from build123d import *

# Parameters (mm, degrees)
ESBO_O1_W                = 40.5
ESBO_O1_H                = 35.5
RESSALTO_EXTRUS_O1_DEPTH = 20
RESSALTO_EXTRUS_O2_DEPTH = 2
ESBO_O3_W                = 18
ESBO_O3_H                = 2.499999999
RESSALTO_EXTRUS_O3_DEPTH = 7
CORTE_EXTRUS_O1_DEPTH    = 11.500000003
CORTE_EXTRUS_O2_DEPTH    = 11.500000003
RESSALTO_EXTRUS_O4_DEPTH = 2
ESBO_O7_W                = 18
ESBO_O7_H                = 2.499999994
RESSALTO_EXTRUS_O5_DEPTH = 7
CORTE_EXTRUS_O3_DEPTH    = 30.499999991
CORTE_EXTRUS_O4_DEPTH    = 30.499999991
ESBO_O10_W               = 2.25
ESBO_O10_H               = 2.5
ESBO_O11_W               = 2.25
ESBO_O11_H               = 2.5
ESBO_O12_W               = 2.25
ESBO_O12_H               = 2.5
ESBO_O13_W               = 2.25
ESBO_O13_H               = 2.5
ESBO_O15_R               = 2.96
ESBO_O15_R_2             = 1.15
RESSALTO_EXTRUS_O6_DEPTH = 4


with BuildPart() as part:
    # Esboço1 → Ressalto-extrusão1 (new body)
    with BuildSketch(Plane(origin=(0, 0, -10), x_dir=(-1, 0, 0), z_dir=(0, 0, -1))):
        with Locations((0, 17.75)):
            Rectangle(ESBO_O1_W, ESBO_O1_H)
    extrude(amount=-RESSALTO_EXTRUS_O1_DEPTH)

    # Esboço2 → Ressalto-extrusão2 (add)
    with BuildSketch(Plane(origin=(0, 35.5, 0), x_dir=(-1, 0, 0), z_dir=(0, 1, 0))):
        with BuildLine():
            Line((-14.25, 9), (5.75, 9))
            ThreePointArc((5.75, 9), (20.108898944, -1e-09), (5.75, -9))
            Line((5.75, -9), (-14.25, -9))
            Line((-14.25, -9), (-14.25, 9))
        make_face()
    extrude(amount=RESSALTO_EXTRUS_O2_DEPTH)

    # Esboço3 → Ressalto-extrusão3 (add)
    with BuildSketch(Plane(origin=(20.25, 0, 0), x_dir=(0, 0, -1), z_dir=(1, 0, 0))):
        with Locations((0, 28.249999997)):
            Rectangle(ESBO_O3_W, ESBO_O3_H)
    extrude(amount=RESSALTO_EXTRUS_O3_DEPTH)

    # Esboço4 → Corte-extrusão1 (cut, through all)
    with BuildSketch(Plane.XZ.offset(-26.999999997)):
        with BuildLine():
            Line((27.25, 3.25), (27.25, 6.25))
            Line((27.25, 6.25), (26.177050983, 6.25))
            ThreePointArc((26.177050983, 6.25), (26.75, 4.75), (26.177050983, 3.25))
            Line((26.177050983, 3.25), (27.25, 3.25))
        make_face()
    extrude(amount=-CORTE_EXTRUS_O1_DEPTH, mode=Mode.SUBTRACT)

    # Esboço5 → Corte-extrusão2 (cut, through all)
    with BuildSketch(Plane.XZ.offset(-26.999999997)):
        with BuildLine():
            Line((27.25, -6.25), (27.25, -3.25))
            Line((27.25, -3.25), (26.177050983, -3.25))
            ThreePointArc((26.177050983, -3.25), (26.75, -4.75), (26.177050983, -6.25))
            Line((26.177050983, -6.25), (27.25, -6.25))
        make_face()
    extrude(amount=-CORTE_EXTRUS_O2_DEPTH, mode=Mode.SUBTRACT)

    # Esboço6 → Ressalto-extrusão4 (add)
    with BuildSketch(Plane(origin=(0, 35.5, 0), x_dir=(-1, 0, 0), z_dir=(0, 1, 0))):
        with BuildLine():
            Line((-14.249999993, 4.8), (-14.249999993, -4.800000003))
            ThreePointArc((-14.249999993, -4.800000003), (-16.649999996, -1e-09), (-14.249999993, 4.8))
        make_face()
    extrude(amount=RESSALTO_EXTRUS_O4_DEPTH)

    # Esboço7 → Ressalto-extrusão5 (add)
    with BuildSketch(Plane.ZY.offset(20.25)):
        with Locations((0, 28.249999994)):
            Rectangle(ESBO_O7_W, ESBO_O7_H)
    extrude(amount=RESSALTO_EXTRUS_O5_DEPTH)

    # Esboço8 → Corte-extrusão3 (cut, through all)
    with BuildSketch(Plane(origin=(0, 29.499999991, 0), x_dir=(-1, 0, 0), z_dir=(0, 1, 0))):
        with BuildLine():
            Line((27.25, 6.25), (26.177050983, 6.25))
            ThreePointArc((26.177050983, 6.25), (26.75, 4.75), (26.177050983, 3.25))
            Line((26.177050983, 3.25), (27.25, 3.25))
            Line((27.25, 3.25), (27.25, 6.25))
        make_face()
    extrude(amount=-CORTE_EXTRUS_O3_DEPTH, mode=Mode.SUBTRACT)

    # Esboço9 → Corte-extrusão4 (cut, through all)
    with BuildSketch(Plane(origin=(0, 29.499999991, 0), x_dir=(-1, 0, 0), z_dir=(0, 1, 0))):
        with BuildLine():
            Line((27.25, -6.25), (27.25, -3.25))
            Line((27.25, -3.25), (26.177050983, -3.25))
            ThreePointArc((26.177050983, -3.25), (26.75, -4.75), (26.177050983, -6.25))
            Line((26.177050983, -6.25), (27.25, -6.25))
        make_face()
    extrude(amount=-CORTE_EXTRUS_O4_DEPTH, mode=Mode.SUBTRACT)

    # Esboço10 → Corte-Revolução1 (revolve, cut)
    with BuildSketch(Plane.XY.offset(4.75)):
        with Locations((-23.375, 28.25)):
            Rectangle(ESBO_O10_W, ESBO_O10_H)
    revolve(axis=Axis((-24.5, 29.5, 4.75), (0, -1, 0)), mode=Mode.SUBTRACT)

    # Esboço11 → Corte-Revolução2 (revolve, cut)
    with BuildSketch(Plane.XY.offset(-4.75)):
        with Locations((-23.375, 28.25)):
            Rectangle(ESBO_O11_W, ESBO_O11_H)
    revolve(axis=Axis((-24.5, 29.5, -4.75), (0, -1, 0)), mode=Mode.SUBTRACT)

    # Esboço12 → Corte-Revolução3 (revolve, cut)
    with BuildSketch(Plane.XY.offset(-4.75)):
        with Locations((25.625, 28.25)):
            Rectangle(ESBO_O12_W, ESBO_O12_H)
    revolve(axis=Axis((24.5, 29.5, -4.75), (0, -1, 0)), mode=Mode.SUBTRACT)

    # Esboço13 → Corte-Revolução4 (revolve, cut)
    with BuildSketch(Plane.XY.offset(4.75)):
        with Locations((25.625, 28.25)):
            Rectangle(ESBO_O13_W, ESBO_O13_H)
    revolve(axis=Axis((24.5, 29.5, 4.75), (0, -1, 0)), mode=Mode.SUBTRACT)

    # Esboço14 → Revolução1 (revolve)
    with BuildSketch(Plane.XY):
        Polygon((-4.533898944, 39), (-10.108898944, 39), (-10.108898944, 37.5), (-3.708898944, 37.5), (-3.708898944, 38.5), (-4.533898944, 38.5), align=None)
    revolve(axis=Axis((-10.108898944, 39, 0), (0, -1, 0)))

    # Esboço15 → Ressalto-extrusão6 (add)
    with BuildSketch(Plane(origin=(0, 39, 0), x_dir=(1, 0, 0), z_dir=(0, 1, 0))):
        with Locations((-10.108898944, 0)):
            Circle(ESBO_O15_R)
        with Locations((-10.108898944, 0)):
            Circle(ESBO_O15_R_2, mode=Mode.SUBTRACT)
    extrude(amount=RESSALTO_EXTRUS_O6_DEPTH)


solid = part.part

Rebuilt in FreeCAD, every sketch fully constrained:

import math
import FreeCAD as App
import Part
import Sketcher
from FreeCAD import Vector


def add_polygon(sketch, points):
    """Adds a closed chain of lines whose ends are joined by coincident constraints."""
    first, n = sketch.GeometryCount, len(points)
    for a, b in zip(points, points[1:] + points[:1]):
        sketch.addGeometry(Part.LineSegment(App.Vector(*a, 0), App.Vector(*b, 0)), False)
    for i in range(n):
        sketch.addConstraint(Sketcher.Constraint("Coincident", first + i, 2, first + (i + 1) % n, 1))

doc = App.newDocument("Part")
body = doc.addObject("PartDesign::Body", "Body")

# Sketch on XY plane
sketch1 = body.newObject("Sketcher::SketchObject", "Sketch")
sketch1.AttachmentSupport = (doc.getObject("XY_Plane"), [""])
sketch1.MapMode = "FlatFace"
sketch1.AttachmentOffset = App.Placement(Vector(0, 0, -10), App.Rotation())
add_polygon(sketch1, [(20.25, 35.5), (20.25, 0), (-20.25, 0), (-20.25, 35.5)])  # lines 0-3
sketch1.addConstraint([
    Sketcher.Constraint("Vertical", 0),
    Sketcher.Constraint("Horizontal", 1),
    Sketcher.Constraint("Vertical", 2),
    Sketcher.Constraint("Horizontal", 3),
    Sketcher.Constraint("Symmetric", 0, 2, 1, 2, -1, 1),
    Sketcher.Constraint("DistanceX", 1, 2, 1, 1, 40.5),
    Sketcher.Constraint("DistanceY", 0, 2, 0, 1, 35.5),
])
pad1 = body.newObject("PartDesign::Pad", "Pad")
pad1.Profile = sketch1
pad1.Length = 20

# Sketch on XZ plane
sketch2 = body.newObject("Sketcher::SketchObject", "Sketch001")
sketch2.AttachmentSupport = (doc.getObject("XZ_Plane"), [""])
sketch2.MapMode = "FlatFace"
sketch2.AttachmentOffset = App.Placement(Vector(0, 0, -35.5), App.Rotation())
sketch2.addGeometry([
    Part.LineSegment(Vector(-5.75, 9, 0), Vector(14.25, 9, 0)),
    Part.LineSegment(Vector(14.25, 9, 0), Vector(14.25, -9, 0)),
    Part.LineSegment(Vector(14.25, -9, 0), Vector(-5.75, -9, 0)),
    Part.ArcOfCircle(Part.Circle(Vector(-10.108899, 0, 0), Vector(0, 0, 1), 10), math.radians(64.158067), math.radians(295.841933)),
], False)
sketch2.addConstraint([
    Sketcher.Constraint("Coincident", 0, 2, 1, 1),
    Sketcher.Constraint("Coincident", 1, 2, 2, 1),
    Sketcher.Constraint("Coincident", 2, 2, 3, 2),
    Sketcher.Constraint("Coincident", 3, 1, 0, 1),
    Sketcher.Constraint("Horizontal", 0),
    Sketcher.Constraint("Vertical", 1),
    Sketcher.Constraint("Horizontal", 2),
    Sketcher.Constraint("Symmetric", 2, 2, 3, 1, -1),
    Sketcher.Constraint("Radius", 3, 10.0),
    Sketcher.Constraint("DistanceX", 0, 1, 0, 2, 20.0),
    Sketcher.Constraint("DistanceY", 1, 2, 1, 1, 18.0),
    Sketcher.Constraint("DistanceX", -1, 1, 0, 2, 14.25),
])
pad2 = body.newObject("PartDesign::Pad", "Pad001")
pad2.Profile = sketch2
pad2.Length = 2
pad2.Reversed = True

# Sketch on YZ plane
sketch3 = body.newObject("Sketcher::SketchObject", "Sketch002")
sketch3.AttachmentSupport = (doc.getObject("YZ_Plane"), [""])
sketch3.MapMode = "FlatFace"
sketch3.AttachmentOffset = App.Placement(Vector(0, 0, 20.25), App.Rotation())
add_polygon(sketch3, [(29.5, 9), (27, 9), (27, -9), (29.5, -9)])  # lines 0-3
sketch3.addConstraint([
    Sketcher.Constraint("Horizontal", 0),
    Sketcher.Constraint("Vertical", 1),
    Sketcher.Constraint("Horizontal", 2),
    Sketcher.Constraint("Vertical", 3),
    Sketcher.Constraint("DistanceY", 1, 2, 1, 1, 18.0),
    Sketcher.Constraint("DistanceX", 0, 2, 0, 1, 2.5),
    Sketcher.Constraint("DistanceX", -1, 1, 0, 2, 27.0),
    Sketcher.Constraint("DistanceY", -1, 1, 0, 2, 9.0),
])
pad3 = body.newObject("PartDesign::Pad", "Pad002")
pad3.Profile = sketch3
pad3.Length = 7

# Sketch on XZ plane
sketch4 = body.newObject("Sketcher::SketchObject", "Sketch003")
sketch4.AttachmentSupport = (doc.getObject("XZ_Plane"), [""])
sketch4.MapMode = "FlatFace"
sketch4.AttachmentOffset = App.Placement(Vector(0, 0, -27), App.Rotation())
sketch4.addGeometry([
    Part.LineSegment(Vector(27.25, 3.25, 0), Vector(27.25, 6.25, 0)),
    Part.LineSegment(Vector(27.25, 6.25, 0), Vector(26.177051, 6.25, 0)),
    Part.ArcOfCircle(Part.Circle(Vector(24.5, 4.75, 0), Vector(0, 0, 1), 2.25), math.radians(-41.810315), math.radians(41.810315)),
    Part.LineSegment(Vector(26.177051, 3.25, 0), Vector(27.25, 3.25, 0)),
], False)
sketch4.addConstraint([
    Sketcher.Constraint("Coincident", 0, 2, 1, 1),
    Sketcher.Constraint("Coincident", 1, 2, 2, 2),
    Sketcher.Constraint("Coincident", 2, 1, 3, 1),
    Sketcher.Constraint("Coincident", 3, 2, 0, 1),
    Sketcher.Constraint("Vertical", 0),
    Sketcher.Constraint("Horizontal", 1),
    Sketcher.Constraint("Horizontal", 3),
    Sketcher.Constraint("Vertical", 1, 2, 2, 1),
    Sketcher.Constraint("DistanceY", 0, 1, 0, 2, 3.0),
    Sketcher.Constraint("Radius", 2, 2.25),
    Sketcher.Constraint("DistanceX", -1, 1, 2, 3, 24.5),
    Sketcher.Constraint("DistanceY", -1, 1, 2, 3, 4.75),
    Sketcher.Constraint("DistanceX", -1, 1, 0, 2, 27.25),
])
pocket1 = body.newObject("PartDesign::Pocket", "Pocket")
pocket1.Profile = sketch4
pocket1.Type = "ThroughAll"

# Sketch on XZ plane
sketch5 = body.newObject("Sketcher::SketchObject", "Sketch004")
sketch5.AttachmentSupport = (doc.getObject("XZ_Plane"), [""])
sketch5.MapMode = "FlatFace"
sketch5.AttachmentOffset = App.Placement(Vector(0, 0, -27), App.Rotation())
sketch5.addGeometry([
    Part.LineSegment(Vector(27.25, -6.25, 0), Vector(27.25, -3.25, 0)),
    Part.LineSegment(Vector(27.25, -3.25, 0), Vector(26.177051, -3.25, 0)),
    Part.ArcOfCircle(Part.Circle(Vector(24.5, -4.75, 0), Vector(0, 0, 1), 2.25), math.radians(-41.810315), math.radians(41.810315)),
    Part.LineSegment(Vector(26.177051, -6.25, 0), Vector(27.25, -6.25, 0)),
], False)
sketch5.addConstraint([
    Sketcher.Constraint("Coincident", 0, 2, 1, 1),
    Sketcher.Constraint("Coincident", 1, 2, 2, 2),
    Sketcher.Constraint("Coincident", 2, 1, 3, 1),
    Sketcher.Constraint("Coincident", 3, 2, 0, 1),
    Sketcher.Constraint("Vertical", 0),
    Sketcher.Constraint("Horizontal", 1),
    Sketcher.Constraint("Horizontal", 3),
    Sketcher.Constraint("Vertical", 1, 2, 2, 1),
    Sketcher.Constraint("DistanceY", 0, 1, 0, 2, 3.0),
    Sketcher.Constraint("Radius", 2, 2.25),
    Sketcher.Constraint("DistanceX", -1, 1, 2, 3, 24.5),
    Sketcher.Constraint("DistanceY", 2, 3, -1, 1, 4.75),
    Sketcher.Constraint("DistanceX", -1, 1, 0, 2, 27.25),
])
pocket2 = body.newObject("PartDesign::Pocket", "Pocket001")
pocket2.Profile = sketch5
pocket2.Type = "ThroughAll"

# Sketch on XZ plane
sketch6 = body.newObject("Sketcher::SketchObject", "Sketch005")
sketch6.AttachmentSupport = (doc.getObject("XZ_Plane"), [""])
sketch6.MapMode = "FlatFace"
sketch6.AttachmentOffset = App.Placement(Vector(0, 0, -35.5), App.Rotation())
sketch6.addGeometry([
    Part.LineSegment(Vector(14.25, -4.8, 0), Vector(14.25, 4.8, 0)),
    Part.ArcOfCircle(Part.Circle(Vector(10.65, 0, 0), Vector(0, 0, 1), 6), math.radians(-53.130102), math.radians(53.130102)),
], False)
sketch6.addConstraint([
    Sketcher.Constraint("Coincident", 0, 1, 1, 1),
    Sketcher.Constraint("Coincident", 1, 2, 0, 2),
    Sketcher.Constraint("Vertical", 0),
    Sketcher.Constraint("PointOnObject", 1, 3, -1),
    Sketcher.Constraint("Radius", 1, 6.0),
    Sketcher.Constraint("DistanceY", 0, 1, 0, 2, 9.6),
    Sketcher.Constraint("DistanceX", -1, 1, 1, 3, 10.65),
])
pad4 = body.newObject("PartDesign::Pad", "Pad003")
pad4.Profile = sketch6
pad4.Length = 2
pad4.Reversed = True

# Sketch on YZ plane
sketch7 = body.newObject("Sketcher::SketchObject", "Sketch006")
sketch7.AttachmentSupport = (doc.getObject("YZ_Plane"), [""])
sketch7.MapMode = "FlatFace"
sketch7.AttachmentOffset = App.Placement(Vector(0, 0, -20.25), App.Rotation())
add_polygon(sketch7, [(29.5, -9), (27, -9), (27, 9), (29.5, 9)])  # lines 0-3
sketch7.addConstraint([
    Sketcher.Constraint("Horizontal", 0),
    Sketcher.Constraint("Vertical", 1),
    Sketcher.Constraint("Horizontal", 2),
    Sketcher.Constraint("Vertical", 3),
    Sketcher.Constraint("DistanceY", 1, 1, 1, 2, 18.0),
    Sketcher.Constraint("DistanceX", 0, 2, 0, 1, 2.5),
    Sketcher.Constraint("DistanceX", -1, 1, 0, 2, 27.0),
    Sketcher.Constraint("DistanceY", 0, 2, -1, 1, 9.0),
])
pad5 = body.newObject("PartDesign::Pad", "Pad004")
pad5.Profile = sketch7
pad5.Length = 7
pad5.Reversed = True

# Sketch on XZ plane
sketch8 = body.newObject("Sketcher::SketchObject", "Sketch007")
sketch8.AttachmentSupport = (doc.getObject("XZ_Plane"), [""])
sketch8.MapMode = "FlatFace"
sketch8.AttachmentOffset = App.Placement(Vector(0, 0, -29.5), App.Rotation())
sketch8.addGeometry([
    Part.LineSegment(Vector(-27.25, 6.25, 0), Vector(-26.177051, 6.25, 0)),
    Part.ArcOfCircle(Part.Circle(Vector(-24.5, 4.75, 0), Vector(0, 0, 1), 2.25), math.radians(138.189685), math.radians(221.810315)),
    Part.LineSegment(Vector(-26.177051, 3.25, 0), Vector(-27.25, 3.25, 0)),
    Part.LineSegment(Vector(-27.25, 3.25, 0), Vector(-27.25, 6.25, 0)),
], False)
sketch8.addConstraint([
    Sketcher.Constraint("Coincident", 0, 2, 1, 1),
    Sketcher.Constraint("Coincident", 1, 2, 2, 1),
    Sketcher.Constraint("Coincident", 2, 2, 3, 1),
    Sketcher.Constraint("Coincident", 3, 2, 0, 1),
    Sketcher.Constraint("Horizontal", 0),
    Sketcher.Constraint("Horizontal", 2),
    Sketcher.Constraint("Vertical", 3),
    Sketcher.Constraint("Vertical", 0, 2, 1, 2),
    Sketcher.Constraint("DistanceY", 3, 1, 3, 2, 3.0),
    Sketcher.Constraint("Radius", 1, 2.25),
    Sketcher.Constraint("DistanceX", 1, 3, -1, 1, 24.5),
    Sketcher.Constraint("DistanceY", -1, 1, 1, 3, 4.75),
    Sketcher.Constraint("DistanceX", 2, 2, -1, 1, 27.25),
])
pocket3 = body.newObject("PartDesign::Pocket", "Pocket002")
pocket3.Profile = sketch8
pocket3.Type = "ThroughAll"
pocket3.Reversed = True

# Sketch on XZ plane
sketch9 = body.newObject("Sketcher::SketchObject", "Sketch008")
sketch9.AttachmentSupport = (doc.getObject("XZ_Plane"), [""])
sketch9.MapMode = "FlatFace"
sketch9.AttachmentOffset = App.Placement(Vector(0, 0, -29.5), App.Rotation())
sketch9.addGeometry([
    Part.LineSegment(Vector(-27.25, -6.25, 0), Vector(-27.25, -3.25, 0)),
    Part.LineSegment(Vector(-27.25, -3.25, 0), Vector(-26.177051, -3.25, 0)),
    Part.ArcOfCircle(Part.Circle(Vector(-24.5, -4.75, 0), Vector(0, 0, 1), 2.25), math.radians(138.189685), math.radians(221.810315)),
    Part.LineSegment(Vector(-26.177051, -6.25, 0), Vector(-27.25, -6.25, 0)),
], False)
sketch9.addConstraint([
    Sketcher.Constraint("Coincident", 0, 2, 1, 1),
    Sketcher.Constraint("Coincident", 1, 2, 2, 1),
    Sketcher.Constraint("Coincident", 2, 2, 3, 1),
    Sketcher.Constraint("Coincident", 3, 2, 0, 1),
    Sketcher.Constraint("Vertical", 0),
    Sketcher.Constraint("Horizontal", 1),
    Sketcher.Constraint("Horizontal", 3),
    Sketcher.Constraint("Vertical", 1, 2, 2, 2),
    Sketcher.Constraint("DistanceY", 0, 1, 0, 2, 3.0),
    Sketcher.Constraint("Radius", 2, 2.25),
    Sketcher.Constraint("DistanceX", 2, 3, -1, 1, 24.5),
    Sketcher.Constraint("DistanceY", 2, 3, -1, 1, 4.75),
    Sketcher.Constraint("DistanceX", 0, 2, -1, 1, 27.25),
])
pocket4 = body.newObject("PartDesign::Pocket", "Pocket003")
pocket4.Profile = sketch9
pocket4.Type = "ThroughAll"
pocket4.Reversed = True

# Sketch on XY plane
sketch10 = body.newObject("Sketcher::SketchObject", "Sketch009")
sketch10.AttachmentSupport = (doc.getObject("XY_Plane"), [""])
sketch10.MapMode = "FlatFace"
sketch10.AttachmentOffset = App.Placement(Vector(0, 0, 4.75), App.Rotation())
add_polygon(sketch10, [(-24.5, 29.5), (-24.5, 27), (-22.25, 27), (-22.25, 29.5)])  # lines 0-3
sketch10.addGeometry(Part.LineSegment(Vector(-24.5, 29.5, 0), Vector(-24.5, 27, 0)), True)  # axis
sketch10.addConstraint([
    Sketcher.Constraint("Vertical", 0),
    Sketcher.Constraint("Horizontal", 1),
    Sketcher.Constraint("Vertical", 2),
    Sketcher.Constraint("Horizontal", 3),
    Sketcher.Constraint("Vertical", 4),
    Sketcher.Constraint("Coincident", 4, 1, 3, 2),
    Sketcher.Constraint("Horizontal", 1, 2, 4, 2),
    Sketcher.Constraint("DistanceY", 0, 2, 0, 1, 2.5),
    Sketcher.Constraint("DistanceY", -1, 1, 0, 2, 27.0),
    Sketcher.Constraint("DistanceX", 1, 1, 1, 2, 2.25),
    Sketcher.Constraint("DistanceX", 0, 2, -1, 1, 24.5),
])
groove = body.newObject("PartDesign::Groove", "Groove")
groove.Profile = sketch10
groove.ReferenceAxis = (sketch10, ["Axis0"])
groove.Angle = 360

# Sketch on XY plane
sketch11 = body.newObject("Sketcher::SketchObject", "Sketch010")
sketch11.AttachmentSupport = (doc.getObject("XY_Plane"), [""])
sketch11.MapMode = "FlatFace"
sketch11.AttachmentOffset = App.Placement(Vector(0, 0, -4.75), App.Rotation())
add_polygon(sketch11, [(-24.5, 29.5), (-24.5, 27), (-22.25, 27), (-22.25, 29.5)])  # lines 0-3
sketch11.addGeometry(Part.LineSegment(Vector(-24.5, 29.5, 0), Vector(-24.5, 27, 0)), True)  # axis
sketch11.addConstraint([
    Sketcher.Constraint("Vertical", 0),
    Sketcher.Constraint("Horizontal", 1),
    Sketcher.Constraint("Vertical", 2),
    Sketcher.Constraint("Horizontal", 3),
    Sketcher.Constraint("Vertical", 4),
    Sketcher.Constraint("Coincident", 4, 1, 3, 2),
    Sketcher.Constraint("Horizontal", 1, 2, 4, 2),
    Sketcher.Constraint("DistanceY", 0, 2, 0, 1, 2.5),
    Sketcher.Constraint("DistanceY", -1, 1, 0, 2, 27.0),
    Sketcher.Constraint("DistanceX", 1, 1, 1, 2, 2.25),
    Sketcher.Constraint("DistanceX", 0, 2, -1, 1, 24.5),
])
groove2 = body.newObject("PartDesign::Groove", "Groove001")
groove2.Profile = sketch11
groove2.ReferenceAxis = (sketch11, ["Axis0"])
groove2.Angle = 360

# Sketch on XY plane
sketch12 = body.newObject("Sketcher::SketchObject", "Sketch011")
sketch12.AttachmentSupport = (doc.getObject("XY_Plane"), [""])
sketch12.MapMode = "FlatFace"
sketch12.AttachmentOffset = App.Placement(Vector(0, 0, -4.75), App.Rotation())
add_polygon(sketch12, [(24.5, 29.5), (24.5, 27), (26.75, 27), (26.75, 29.5)])  # lines 0-3
sketch12.addGeometry(Part.LineSegment(Vector(24.5, 29.5, 0), Vector(24.5, 27, 0)), True)  # axis
sketch12.addConstraint([
    Sketcher.Constraint("Vertical", 0),
    Sketcher.Constraint("Horizontal", 1),
    Sketcher.Constraint("Vertical", 2),
    Sketcher.Constraint("Horizontal", 3),
    Sketcher.Constraint("Vertical", 4),
    Sketcher.Constraint("Coincident", 4, 1, 3, 2),
    Sketcher.Constraint("Horizontal", 1, 2, 4, 2),
    Sketcher.Constraint("DistanceY", 0, 2, 0, 1, 2.5),
    Sketcher.Constraint("DistanceY", -1, 1, 0, 2, 27.0),
    Sketcher.Constraint("DistanceX", 1, 1, 1, 2, 2.25),
    Sketcher.Constraint("DistanceX", -1, 1, 0, 2, 24.5),
])
groove3 = body.newObject("PartDesign::Groove", "Groove002")
groove3.Profile = sketch12
groove3.ReferenceAxis = (sketch12, ["Axis0"])
groove3.Angle = 360

# Sketch on XY plane
sketch13 = body.newObject("Sketcher::SketchObject", "Sketch012")
sketch13.AttachmentSupport = (doc.getObject("XY_Plane"), [""])
sketch13.MapMode = "FlatFace"
sketch13.AttachmentOffset = App.Placement(Vector(0, 0, 4.75), App.Rotation())
add_polygon(sketch13, [(24.5, 29.5), (24.5, 27), (26.75, 27), (26.75, 29.5)])  # lines 0-3
sketch13.addGeometry(Part.LineSegment(Vector(24.5, 29.5, 0), Vector(24.5, 27, 0)), True)  # axis
sketch13.addConstraint([
    Sketcher.Constraint("Vertical", 0),
    Sketcher.Constraint("Horizontal", 1),
    Sketcher.Constraint("Vertical", 2),
    Sketcher.Constraint("Horizontal", 3),
    Sketcher.Constraint("Vertical", 4),
    Sketcher.Constraint("Coincident", 4, 1, 3, 2),
    Sketcher.Constraint("Horizontal", 1, 2, 4, 2),
    Sketcher.Constraint("DistanceY", 0, 2, 0, 1, 2.5),
    Sketcher.Constraint("DistanceY", -1, 1, 0, 2, 27.0),
    Sketcher.Constraint("DistanceX", 1, 1, 1, 2, 2.25),
    Sketcher.Constraint("DistanceX", -1, 1, 0, 2, 24.5),
])
groove4 = body.newObject("PartDesign::Groove", "Groove003")
groove4.Profile = sketch13
groove4.ReferenceAxis = (sketch13, ["Axis0"])
groove4.Angle = 360

# Sketch on XY plane
sketch14 = body.newObject("Sketcher::SketchObject", "Sketch013")
sketch14.AttachmentSupport = (doc.getObject("XY_Plane"), [""])
sketch14.MapMode = "FlatFace"
add_polygon(sketch14, [(-4.533899, 39), (-10.108899, 39), (-10.108899, 37.5), (-3.708899, 37.5), (-3.708899, 38.5), (-4.533899, 38.5)])  # lines 0-5
sketch14.addGeometry(Part.LineSegment(Vector(-10.108899, 39, 0), Vector(-10.108899, 37.5, 0)), True)  # axis
sketch14.addConstraint([
    Sketcher.Constraint("Horizontal", 0),
    Sketcher.Constraint("Vertical", 1),
    Sketcher.Constraint("Horizontal", 2),
    Sketcher.Constraint("Vertical", 3),
    Sketcher.Constraint("Horizontal", 4),
    Sketcher.Constraint("Vertical", 5),
    Sketcher.Constraint("Vertical", 6),
    Sketcher.Constraint("Coincident", 6, 1, 0, 2),
    Sketcher.Constraint("Horizontal", 2, 2, 6, 2),
    Sketcher.Constraint("DistanceY", 3, 1, 3, 2, 1.0),
    Sketcher.Constraint("DistanceX", 2, 1, 2, 2, 6.4),
    Sketcher.Constraint("DistanceY", 1, 2, 1, 1, 1.5),
    Sketcher.Constraint("DistanceY", -1, 1, 0, 2, 39.0),
    Sketcher.Constraint("DistanceX", 0, 2, 0, 1, 5.575),
    Sketcher.Constraint("DistanceX", 0, 2, -1, 1, 10.108899),
])
revolution = body.newObject("PartDesign::Revolution", "Revolution")
revolution.Profile = sketch14
revolution.ReferenceAxis = (sketch14, ["Axis0"])
revolution.Angle = 360

# Sketch on XZ plane
sketch15 = body.newObject("Sketcher::SketchObject", "Sketch014")
sketch15.AttachmentSupport = (doc.getObject("XZ_Plane"), [""])
sketch15.MapMode = "FlatFace"
sketch15.AttachmentOffset = App.Placement(Vector(0, 0, -39), App.Rotation())
sketch15.addGeometry([
    Part.Circle(Vector(-10.108899, 0, 0), Vector(0, 0, 1), 2.96),
    Part.Circle(Vector(-10.108899, 0, 0), Vector(0, 0, 1), 1.15),
], False)
sketch15.addConstraint([
    Sketcher.Constraint("Coincident", 1, 3, 0, 3),
    Sketcher.Constraint("PointOnObject", 0, 3, -1),
    Sketcher.Constraint("Diameter", 1, 2.3),
    Sketcher.Constraint("Diameter", 0, 5.92),
    Sketcher.Constraint("DistanceX", 0, 3, -1, 1, 10.108899),
])
pad6 = body.newObject("PartDesign::Pad", "Pad005")
pad6.Profile = sketch15
pad6.Length = 4
pad6.Reversed = True

doc.recompute()
